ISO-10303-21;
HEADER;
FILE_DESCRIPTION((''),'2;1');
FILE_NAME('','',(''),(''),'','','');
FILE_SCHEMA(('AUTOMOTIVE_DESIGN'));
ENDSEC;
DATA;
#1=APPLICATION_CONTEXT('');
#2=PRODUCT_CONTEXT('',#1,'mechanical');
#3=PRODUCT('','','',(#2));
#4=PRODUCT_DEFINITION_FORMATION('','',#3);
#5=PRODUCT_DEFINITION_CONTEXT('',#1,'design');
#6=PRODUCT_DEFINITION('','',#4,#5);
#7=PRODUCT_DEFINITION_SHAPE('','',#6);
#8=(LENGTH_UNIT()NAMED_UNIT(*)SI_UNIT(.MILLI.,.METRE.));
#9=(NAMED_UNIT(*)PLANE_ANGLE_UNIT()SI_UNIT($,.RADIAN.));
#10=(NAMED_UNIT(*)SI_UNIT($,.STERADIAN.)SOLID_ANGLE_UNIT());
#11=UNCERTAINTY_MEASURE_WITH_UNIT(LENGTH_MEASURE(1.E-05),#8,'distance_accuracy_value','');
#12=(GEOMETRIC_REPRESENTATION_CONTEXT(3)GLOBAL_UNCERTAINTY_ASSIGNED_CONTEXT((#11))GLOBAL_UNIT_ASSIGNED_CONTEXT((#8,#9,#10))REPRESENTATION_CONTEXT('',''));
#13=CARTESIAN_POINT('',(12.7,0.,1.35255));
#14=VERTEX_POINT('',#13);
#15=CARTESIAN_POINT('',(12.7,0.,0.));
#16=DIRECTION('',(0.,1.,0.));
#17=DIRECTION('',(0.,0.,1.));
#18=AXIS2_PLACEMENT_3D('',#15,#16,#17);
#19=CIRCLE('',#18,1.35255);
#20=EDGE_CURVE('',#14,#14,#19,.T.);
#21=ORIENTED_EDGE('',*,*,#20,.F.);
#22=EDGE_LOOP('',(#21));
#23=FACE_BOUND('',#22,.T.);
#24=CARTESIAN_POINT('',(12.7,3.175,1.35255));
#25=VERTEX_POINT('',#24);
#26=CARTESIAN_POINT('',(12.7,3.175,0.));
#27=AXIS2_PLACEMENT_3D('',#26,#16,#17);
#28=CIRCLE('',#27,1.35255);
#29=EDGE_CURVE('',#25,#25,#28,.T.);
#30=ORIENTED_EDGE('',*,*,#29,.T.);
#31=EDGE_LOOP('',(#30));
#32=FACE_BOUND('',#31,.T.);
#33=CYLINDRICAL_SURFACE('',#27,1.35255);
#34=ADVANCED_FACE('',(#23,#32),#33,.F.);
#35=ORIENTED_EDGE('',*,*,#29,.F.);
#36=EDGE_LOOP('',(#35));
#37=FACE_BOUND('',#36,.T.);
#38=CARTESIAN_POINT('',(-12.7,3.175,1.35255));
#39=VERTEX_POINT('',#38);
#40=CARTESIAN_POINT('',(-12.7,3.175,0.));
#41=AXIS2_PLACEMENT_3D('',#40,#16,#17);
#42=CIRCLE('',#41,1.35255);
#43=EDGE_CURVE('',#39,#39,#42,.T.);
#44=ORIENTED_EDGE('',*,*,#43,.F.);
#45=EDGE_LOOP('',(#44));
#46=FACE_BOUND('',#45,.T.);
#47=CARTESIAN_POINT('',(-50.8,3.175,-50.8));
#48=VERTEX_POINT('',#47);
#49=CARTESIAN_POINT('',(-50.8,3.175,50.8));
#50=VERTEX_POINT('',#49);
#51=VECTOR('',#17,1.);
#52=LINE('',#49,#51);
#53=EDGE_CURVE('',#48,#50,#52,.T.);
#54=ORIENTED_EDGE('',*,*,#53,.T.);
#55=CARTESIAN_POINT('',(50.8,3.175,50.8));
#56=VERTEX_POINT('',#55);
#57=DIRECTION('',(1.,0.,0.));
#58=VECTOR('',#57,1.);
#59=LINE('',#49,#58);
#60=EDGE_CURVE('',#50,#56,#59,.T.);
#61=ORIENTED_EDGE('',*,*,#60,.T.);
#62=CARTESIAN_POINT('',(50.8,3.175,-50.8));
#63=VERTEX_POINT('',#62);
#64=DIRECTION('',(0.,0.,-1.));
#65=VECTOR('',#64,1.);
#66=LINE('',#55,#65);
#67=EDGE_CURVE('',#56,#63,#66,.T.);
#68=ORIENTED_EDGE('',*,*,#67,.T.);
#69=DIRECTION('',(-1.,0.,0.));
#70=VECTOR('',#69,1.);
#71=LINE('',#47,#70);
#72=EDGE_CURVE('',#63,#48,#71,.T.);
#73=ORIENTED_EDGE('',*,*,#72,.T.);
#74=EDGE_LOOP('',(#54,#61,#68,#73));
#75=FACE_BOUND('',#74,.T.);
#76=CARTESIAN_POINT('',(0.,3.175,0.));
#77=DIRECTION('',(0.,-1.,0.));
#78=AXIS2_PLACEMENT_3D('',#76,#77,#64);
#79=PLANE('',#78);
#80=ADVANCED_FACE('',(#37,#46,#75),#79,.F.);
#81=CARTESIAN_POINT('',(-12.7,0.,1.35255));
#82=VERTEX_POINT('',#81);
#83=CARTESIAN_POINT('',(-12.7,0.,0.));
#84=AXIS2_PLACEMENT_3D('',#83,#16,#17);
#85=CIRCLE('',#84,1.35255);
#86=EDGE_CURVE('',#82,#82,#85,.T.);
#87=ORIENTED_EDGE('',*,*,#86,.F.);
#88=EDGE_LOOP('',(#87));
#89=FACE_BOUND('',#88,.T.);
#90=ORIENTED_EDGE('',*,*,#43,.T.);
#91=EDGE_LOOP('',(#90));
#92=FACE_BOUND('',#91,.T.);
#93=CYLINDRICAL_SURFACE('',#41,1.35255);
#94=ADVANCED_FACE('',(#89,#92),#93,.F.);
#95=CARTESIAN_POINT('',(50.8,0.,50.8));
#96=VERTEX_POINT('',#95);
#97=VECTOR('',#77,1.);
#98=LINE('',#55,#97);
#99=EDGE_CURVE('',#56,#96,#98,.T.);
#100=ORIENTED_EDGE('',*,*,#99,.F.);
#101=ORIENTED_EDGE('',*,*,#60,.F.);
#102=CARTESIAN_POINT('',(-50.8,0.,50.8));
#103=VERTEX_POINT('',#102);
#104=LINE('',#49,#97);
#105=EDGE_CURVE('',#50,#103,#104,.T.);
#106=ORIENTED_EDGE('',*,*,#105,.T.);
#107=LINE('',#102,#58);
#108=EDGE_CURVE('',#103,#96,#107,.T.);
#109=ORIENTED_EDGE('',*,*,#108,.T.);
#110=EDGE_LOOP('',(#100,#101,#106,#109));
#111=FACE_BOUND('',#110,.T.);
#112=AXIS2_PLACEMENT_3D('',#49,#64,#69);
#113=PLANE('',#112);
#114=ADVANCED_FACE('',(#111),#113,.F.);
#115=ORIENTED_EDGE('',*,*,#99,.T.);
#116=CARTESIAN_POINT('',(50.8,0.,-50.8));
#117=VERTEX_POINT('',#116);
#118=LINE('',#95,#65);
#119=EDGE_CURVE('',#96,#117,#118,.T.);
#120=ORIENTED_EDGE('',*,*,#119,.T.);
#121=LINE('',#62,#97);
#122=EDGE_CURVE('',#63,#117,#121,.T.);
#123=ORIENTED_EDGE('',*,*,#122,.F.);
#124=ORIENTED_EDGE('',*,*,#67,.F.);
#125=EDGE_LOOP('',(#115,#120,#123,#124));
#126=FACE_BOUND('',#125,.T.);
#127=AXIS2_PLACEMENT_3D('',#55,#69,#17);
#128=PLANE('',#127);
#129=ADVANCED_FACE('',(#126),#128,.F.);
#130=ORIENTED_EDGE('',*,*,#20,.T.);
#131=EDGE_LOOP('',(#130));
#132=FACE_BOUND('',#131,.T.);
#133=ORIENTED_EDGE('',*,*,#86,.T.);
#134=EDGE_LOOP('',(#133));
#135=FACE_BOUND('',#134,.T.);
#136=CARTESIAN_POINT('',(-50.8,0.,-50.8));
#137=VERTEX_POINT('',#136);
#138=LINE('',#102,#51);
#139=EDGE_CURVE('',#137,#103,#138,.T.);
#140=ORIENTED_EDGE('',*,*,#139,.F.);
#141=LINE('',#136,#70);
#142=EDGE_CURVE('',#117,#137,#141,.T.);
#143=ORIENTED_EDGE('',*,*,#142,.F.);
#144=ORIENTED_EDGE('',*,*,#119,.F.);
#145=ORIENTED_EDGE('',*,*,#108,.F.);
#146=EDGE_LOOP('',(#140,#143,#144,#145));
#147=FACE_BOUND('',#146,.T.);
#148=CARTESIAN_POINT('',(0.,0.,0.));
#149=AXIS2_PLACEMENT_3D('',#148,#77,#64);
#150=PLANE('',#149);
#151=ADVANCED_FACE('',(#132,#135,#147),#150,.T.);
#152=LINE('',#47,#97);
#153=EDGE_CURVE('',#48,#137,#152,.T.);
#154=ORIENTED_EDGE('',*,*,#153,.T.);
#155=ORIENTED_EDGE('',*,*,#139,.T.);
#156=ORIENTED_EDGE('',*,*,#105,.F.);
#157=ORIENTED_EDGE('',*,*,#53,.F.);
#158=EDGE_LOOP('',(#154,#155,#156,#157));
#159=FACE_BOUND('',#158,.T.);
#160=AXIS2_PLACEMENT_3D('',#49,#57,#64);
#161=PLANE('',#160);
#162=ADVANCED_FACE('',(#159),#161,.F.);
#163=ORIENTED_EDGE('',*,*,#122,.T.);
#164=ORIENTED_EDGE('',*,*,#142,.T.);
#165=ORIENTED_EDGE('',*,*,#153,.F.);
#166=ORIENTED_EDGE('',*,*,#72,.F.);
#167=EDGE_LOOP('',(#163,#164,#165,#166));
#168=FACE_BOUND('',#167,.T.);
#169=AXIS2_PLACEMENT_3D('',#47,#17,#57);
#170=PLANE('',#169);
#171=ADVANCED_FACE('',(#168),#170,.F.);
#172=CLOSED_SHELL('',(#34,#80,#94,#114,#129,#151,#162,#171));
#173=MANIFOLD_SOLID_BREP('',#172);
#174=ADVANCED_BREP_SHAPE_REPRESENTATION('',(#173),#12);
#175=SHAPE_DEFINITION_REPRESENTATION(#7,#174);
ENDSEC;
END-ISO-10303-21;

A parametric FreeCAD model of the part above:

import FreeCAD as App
import Part
import Sketcher

V = App.Vector
Q = App.Units.Quantity


def add_polygon(sketch, points):
    """Adds a closed chain of lines whose ends are joined by coincident constraints."""
    first, n = sketch.GeometryCount, len(points)
    for a, b in zip(points, points[1:] + points[:1]):
        sketch.addGeometry(Part.LineSegment(App.Vector(*a, 0), App.Vector(*b, 0)), False)
    for i in range(n):
        sketch.addConstraint(Sketcher.Constraint("Coincident", first + i, 2, first + (i + 1) % n, 1))

doc = App.newDocument("Part")
params = doc.addObject("Spreadsheet::Sheet", "Params")
for row, (alias, value) in enumerate([
    ("sketch1_width", "4 in"),
    ("pad1_length", "0.125 in"),
    ("hole_diameter", "0.1065 in"),
], start=1):
    params.set(f"A{row}", alias)
    params.set(f"B{row}", "=" + value)
    params.setAlias(f"B{row}", alias)

body = doc.addObject("PartDesign::Body", "Body")

# Sketch on XZ plane
sketch1 = body.newObject("Sketcher::SketchObject", "Sketch")
sketch1.AttachmentSupport = (doc.getObject("XZ_Plane"), [""])
sketch1.MapMode = "FlatFace"
add_polygon(sketch1, [(-51, -51), (-51, 51), (51, 51), (51, -51)])  # lines 0-3
sketch1.addConstraint([
    Sketcher.Constraint("Vertical", 0),
    Sketcher.Constraint("Horizontal", 1),
    Sketcher.Constraint("Vertical", 2),
    Sketcher.Constraint("Horizontal", 3),
    Sketcher.Constraint("Symmetric", 0, 2, 2, 2, -1, 1),
    Sketcher.Constraint("Equal", 3, 0),
    Sketcher.Constraint("DistanceX", 1, 1, 1, 2, Q("4 in")),
])
sketch1.setExpression("Constraints[10]", "Params.sketch1_width")
pad1 = body.newObject("PartDesign::Pad", "Pad")
pad1.Profile = sketch1
pad1.setExpression("Length", "Params.pad1_length")
pad1.Reversed = True

# Sketch on XZ plane
sketch2 = body.newObject("Sketcher::SketchObject", "Sketch001")
sketch2.AttachmentSupport = (doc.getObject("XZ_Plane"), [""])
sketch2.MapMode = "FlatFace"
sketch2.AttachmentOffset = App.Placement(V(0, 0, -0.125 * 25.4), App.Rotation())
sketch2.addGeometry([
    Part.Circle(V(-12.7, 0, 0), V(0, 0, 1), 1.4),
    Part.Circle(V(12.7, 0, 0), V(0, 0, 1), 1.4),
], False)
sketch2.addConstraint([
    Sketcher.Constraint("Equal", 0, 1),
    Sketcher.Constraint("Symmetric", 0, 3, 1, 3, -1, 1),
    Sketcher.Constraint("PointOnObject", 0, 3, -1),
    Sketcher.Constraint("DistanceX", 0, 3, 1, 3, Q("1 in")),
    Sketcher.Constraint("Diameter", 0, Q("0.1065 in")),
])
doc.recompute()
hole = body.newObject("PartDesign::Hole", "Hole")
hole.Profile = sketch2
hole.ThreadType = "None"
hole.setExpression("Diameter", "Params.hole_diameter")
hole.DepthType = "ThroughAll"
hole.Reversed = True

doc.recompute()
